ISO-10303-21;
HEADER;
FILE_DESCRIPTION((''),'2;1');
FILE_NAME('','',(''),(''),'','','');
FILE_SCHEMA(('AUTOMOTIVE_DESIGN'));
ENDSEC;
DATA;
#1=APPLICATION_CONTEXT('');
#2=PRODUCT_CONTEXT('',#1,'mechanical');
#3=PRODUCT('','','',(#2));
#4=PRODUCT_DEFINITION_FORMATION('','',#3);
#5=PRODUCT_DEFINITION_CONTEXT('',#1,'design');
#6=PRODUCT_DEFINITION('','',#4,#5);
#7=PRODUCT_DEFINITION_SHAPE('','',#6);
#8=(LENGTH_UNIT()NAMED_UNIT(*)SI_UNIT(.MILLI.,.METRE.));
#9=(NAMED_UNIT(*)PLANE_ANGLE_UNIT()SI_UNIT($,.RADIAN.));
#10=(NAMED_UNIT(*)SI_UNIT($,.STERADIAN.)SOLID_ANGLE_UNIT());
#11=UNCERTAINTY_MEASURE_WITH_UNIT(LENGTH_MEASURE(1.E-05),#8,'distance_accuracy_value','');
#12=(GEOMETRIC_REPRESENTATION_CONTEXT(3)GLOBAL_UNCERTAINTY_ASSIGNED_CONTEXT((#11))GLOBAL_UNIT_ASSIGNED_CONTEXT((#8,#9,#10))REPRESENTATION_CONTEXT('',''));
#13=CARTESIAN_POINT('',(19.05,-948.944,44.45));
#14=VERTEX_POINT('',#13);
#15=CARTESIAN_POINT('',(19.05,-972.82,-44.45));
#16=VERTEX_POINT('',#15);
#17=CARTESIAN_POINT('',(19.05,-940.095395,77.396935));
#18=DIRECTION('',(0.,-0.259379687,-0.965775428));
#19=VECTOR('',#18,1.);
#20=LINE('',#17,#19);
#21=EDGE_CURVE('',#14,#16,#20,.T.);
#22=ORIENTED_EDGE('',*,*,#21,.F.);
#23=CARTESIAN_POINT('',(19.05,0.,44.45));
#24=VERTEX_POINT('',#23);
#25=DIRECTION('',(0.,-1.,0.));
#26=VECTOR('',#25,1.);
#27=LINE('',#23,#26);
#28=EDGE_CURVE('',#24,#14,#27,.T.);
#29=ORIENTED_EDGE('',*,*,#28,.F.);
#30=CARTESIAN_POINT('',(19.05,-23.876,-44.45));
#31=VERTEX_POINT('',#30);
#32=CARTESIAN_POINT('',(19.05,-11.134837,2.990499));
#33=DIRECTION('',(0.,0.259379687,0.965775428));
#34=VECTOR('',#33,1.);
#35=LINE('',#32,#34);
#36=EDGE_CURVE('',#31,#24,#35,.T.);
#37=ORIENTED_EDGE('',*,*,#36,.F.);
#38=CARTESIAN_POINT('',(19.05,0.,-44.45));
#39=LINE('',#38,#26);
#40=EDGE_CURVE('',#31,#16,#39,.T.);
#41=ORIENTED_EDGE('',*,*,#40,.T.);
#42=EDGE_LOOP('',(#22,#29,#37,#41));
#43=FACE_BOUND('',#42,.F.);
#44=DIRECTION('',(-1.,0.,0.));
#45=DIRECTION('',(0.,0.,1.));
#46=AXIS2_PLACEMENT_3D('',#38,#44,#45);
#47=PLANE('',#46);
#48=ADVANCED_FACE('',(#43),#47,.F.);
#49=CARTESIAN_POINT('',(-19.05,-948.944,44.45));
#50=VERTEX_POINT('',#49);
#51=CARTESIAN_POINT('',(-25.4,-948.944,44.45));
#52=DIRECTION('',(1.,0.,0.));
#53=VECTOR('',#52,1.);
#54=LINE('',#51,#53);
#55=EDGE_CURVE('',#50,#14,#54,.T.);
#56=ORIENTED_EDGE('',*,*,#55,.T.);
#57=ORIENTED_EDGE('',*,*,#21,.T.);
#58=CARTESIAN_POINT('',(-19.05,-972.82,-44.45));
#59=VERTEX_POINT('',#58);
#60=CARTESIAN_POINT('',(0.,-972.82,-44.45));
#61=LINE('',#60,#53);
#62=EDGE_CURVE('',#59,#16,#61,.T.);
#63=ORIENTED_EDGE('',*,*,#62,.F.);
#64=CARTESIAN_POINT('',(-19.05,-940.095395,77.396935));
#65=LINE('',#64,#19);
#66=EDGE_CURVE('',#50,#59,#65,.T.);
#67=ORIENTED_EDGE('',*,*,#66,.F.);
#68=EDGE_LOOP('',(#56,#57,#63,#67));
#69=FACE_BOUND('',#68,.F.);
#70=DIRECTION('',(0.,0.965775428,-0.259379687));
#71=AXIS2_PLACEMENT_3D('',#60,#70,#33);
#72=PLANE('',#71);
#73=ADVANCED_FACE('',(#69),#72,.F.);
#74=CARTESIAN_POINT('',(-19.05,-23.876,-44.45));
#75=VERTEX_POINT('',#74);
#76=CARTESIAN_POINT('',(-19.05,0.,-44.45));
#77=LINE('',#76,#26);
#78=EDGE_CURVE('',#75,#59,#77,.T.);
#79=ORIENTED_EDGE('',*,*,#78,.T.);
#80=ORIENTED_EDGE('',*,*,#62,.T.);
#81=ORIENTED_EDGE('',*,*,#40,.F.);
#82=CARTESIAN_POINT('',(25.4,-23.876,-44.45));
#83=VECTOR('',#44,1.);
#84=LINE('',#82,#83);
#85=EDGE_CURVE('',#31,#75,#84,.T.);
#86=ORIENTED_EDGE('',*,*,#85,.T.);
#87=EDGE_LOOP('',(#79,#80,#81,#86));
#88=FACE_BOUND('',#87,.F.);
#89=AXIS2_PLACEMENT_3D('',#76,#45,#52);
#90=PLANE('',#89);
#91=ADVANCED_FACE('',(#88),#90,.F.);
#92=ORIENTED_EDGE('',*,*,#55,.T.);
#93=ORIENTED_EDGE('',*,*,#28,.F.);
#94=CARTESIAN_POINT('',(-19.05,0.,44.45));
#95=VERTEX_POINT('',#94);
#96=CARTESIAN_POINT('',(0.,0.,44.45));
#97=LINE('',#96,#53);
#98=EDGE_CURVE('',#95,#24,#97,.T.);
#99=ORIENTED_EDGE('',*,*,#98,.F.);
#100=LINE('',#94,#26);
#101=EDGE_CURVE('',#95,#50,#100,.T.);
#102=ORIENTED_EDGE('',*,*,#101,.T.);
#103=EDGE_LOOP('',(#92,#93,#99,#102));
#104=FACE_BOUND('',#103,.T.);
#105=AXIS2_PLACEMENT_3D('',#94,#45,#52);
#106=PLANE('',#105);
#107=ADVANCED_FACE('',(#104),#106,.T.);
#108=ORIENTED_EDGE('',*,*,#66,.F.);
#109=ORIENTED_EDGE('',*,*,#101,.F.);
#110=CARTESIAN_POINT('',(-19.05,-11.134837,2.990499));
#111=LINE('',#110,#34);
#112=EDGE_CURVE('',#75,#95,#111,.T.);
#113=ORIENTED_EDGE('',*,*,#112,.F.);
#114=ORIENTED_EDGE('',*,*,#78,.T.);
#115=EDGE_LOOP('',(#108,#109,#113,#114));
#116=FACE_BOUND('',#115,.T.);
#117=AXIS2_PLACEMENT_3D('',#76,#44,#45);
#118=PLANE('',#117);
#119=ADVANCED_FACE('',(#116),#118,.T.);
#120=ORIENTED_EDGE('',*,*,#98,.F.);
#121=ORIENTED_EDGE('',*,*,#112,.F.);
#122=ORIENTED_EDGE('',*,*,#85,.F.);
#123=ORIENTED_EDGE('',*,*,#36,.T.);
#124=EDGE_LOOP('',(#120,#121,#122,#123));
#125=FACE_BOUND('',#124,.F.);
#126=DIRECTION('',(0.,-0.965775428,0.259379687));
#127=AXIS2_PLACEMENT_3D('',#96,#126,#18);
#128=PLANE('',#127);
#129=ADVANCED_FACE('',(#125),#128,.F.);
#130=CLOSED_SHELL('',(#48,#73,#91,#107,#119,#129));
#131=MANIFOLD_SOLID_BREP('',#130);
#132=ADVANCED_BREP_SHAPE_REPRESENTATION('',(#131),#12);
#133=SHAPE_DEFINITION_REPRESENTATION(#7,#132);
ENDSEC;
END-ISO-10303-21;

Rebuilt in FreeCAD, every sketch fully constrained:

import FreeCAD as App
import Part
import Sketcher
from FreeCAD import Vector
Q = App.Units.Quantity

doc = App.newDocument("Part")
body = doc.addObject("PartDesign::Body", "Body")

sketch1 = body.newObject("Sketcher::SketchObject", "Sketch")
sketch1.AttachmentSupport = (doc.getObject("XZ_Plane"), [""])
sketch1.MapMode = "FlatFace"
sketch1.addGeometry(Part.LineSegment(Vector(-19, 44, 0), Vector(-19, -44, 0)), False)
sketch1.addGeometry(Part.LineSegment(Vector(-19, -44, 0), Vector(19, -44, 0)), False)
sketch1.addGeometry(Part.LineSegment(Vector(19, -44, 0), Vector(19, 44, 0)), False)
sketch1.addGeometry(Part.LineSegment(Vector(19, 44, 0), Vector(-19, 44, 0)), False)
sketch1.addConstraint(Sketcher.Constraint("Coincident", 0, 2, 1, 1))
sketch1.addConstraint(Sketcher.Constraint("Coincident", 1, 2, 2, 1))
sketch1.addConstraint(Sketcher.Constraint("Coincident", 2, 2, 3, 1))
sketch1.addConstraint(Sketcher.Constraint("Coincident", 3, 2, 0, 1))
sketch1.addConstraint(Sketcher.Constraint("Vertical", 0))
sketch1.addConstraint(Sketcher.Constraint("Horizontal", 1))
sketch1.addConstraint(Sketcher.Constraint("Vertical", 2))
sketch1.addConstraint(Sketcher.Constraint("Horizontal", 3))
sketch1.addConstraint(Sketcher.Constraint("Symmetric", 0, 2, 2, 2, -1, 1))
sketch1.addConstraint(Sketcher.Constraint("DistanceX", 1, 1, 1, 2, Q("1.5 in")))
sketch1.addConstraint(Sketcher.Constraint("DistanceY", 0, 2, 0, 1, Q("3.5 in")))
pad1 = body.newObject("PartDesign::Pad", "Pad")
pad1.Profile = sketch1
pad1.Length = Q("38.3 in")

sketch2 = body.newObject("Sketcher::SketchObject", "Sketch001")
sketch2.AttachmentSupport = (doc.getObject("YZ_Plane"), [""])
sketch2.MapMode = "FlatFace"
sketch2.addGeometry(Part.LineSegment(Vector(-973, -44, 0), Vector(-949, 44, 0)), False)
sketch2.addGeometry(Part.LineSegment(Vector(-949, 44, 0), Vector(-973, 44, 0)), False)
sketch2.addGeometry(Part.LineSegment(Vector(-973, 44, 0), Vector(-973, -44, 0)), False)
sketch2.addConstraint(Sketcher.Constraint("Coincident", 0, 2, 1, 1))
sketch2.addConstraint(Sketcher.Constraint("Coincident", 1, 2, 2, 1))
sketch2.addConstraint(Sketcher.Constraint("Coincident", 2, 2, 0, 1))
sketch2.addConstraint(Sketcher.Constraint("Horizontal", 1))
sketch2.addConstraint(Sketcher.Constraint("Vertical", 2))
sketch2.addConstraint(Sketcher.Constraint("DistanceY", 2, 2, 2, 1, Q("3.5 in")))
sketch2.addConstraint(Sketcher.Constraint("DistanceX", 1, 2, 1, 1, Q("0.94 in")))
sketch2.addConstraint(Sketcher.Constraint("DistanceX", 1, 2, -1, 1, Q("38.3 in")))
sketch2.addConstraint(Sketcher.Constraint("DistanceY", -1, 1, 0, 2, Q("1.75 in")))
pocket1 = body.newObject("PartDesign::Pocket", "Pocket")
pocket1.Profile = sketch2
pocket1.Length = Q("2 in")
pocket1.Midplane = True

sketch3 = body.newObject("Sketcher::SketchObject", "Sketch002")
sketch3.AttachmentSupport = (doc.getObject("YZ_Plane"), [""])
sketch3.MapMode = "FlatFace"
sketch3.addGeometry(Part.LineSegment(Vector(0, -44, 0), Vector(0, 44, 0)), False)
sketch3.addGeometry(Part.LineSegment(Vector(0, 44, 0), Vector(-24, -44, 0)), False)
sketch3.addGeometry(Part.LineSegment(Vector(-24, -44, 0), Vector(0, -44, 0)), False)
sketch3.addConstraint(Sketcher.Constraint("Coincident", 0, 2, 1, 1))
sketch3.addConstraint(Sketcher.Constraint("Coincident", 1, 2, 2, 1))
sketch3.addConstraint(Sketcher.Constraint("Coincident", 2, 2, 0, 1))
sketch3.addConstraint(Sketcher.Constraint("Vertical", 0))
sketch3.addConstraint(Sketcher.Constraint("Horizontal", 2))
sketch3.addConstraint(Sketcher.Constraint("Symmetric", 0, 2, 2, 2, -1, 1))
sketch3.addConstraint(Sketcher.Constraint("DistanceY", 0, 1, 0, 2, Q("3.5 in")))
sketch3.addConstraint(Sketcher.Constraint("DistanceX", 2, 1, 2, 2, Q("0.94 in")))
pocket2 = body.newObject("PartDesign::Pocket", "Pocket001")
pocket2.Profile = sketch3
pocket2.Length = Q("2 in")
pocket2.Midplane = True

doc.recompute()
